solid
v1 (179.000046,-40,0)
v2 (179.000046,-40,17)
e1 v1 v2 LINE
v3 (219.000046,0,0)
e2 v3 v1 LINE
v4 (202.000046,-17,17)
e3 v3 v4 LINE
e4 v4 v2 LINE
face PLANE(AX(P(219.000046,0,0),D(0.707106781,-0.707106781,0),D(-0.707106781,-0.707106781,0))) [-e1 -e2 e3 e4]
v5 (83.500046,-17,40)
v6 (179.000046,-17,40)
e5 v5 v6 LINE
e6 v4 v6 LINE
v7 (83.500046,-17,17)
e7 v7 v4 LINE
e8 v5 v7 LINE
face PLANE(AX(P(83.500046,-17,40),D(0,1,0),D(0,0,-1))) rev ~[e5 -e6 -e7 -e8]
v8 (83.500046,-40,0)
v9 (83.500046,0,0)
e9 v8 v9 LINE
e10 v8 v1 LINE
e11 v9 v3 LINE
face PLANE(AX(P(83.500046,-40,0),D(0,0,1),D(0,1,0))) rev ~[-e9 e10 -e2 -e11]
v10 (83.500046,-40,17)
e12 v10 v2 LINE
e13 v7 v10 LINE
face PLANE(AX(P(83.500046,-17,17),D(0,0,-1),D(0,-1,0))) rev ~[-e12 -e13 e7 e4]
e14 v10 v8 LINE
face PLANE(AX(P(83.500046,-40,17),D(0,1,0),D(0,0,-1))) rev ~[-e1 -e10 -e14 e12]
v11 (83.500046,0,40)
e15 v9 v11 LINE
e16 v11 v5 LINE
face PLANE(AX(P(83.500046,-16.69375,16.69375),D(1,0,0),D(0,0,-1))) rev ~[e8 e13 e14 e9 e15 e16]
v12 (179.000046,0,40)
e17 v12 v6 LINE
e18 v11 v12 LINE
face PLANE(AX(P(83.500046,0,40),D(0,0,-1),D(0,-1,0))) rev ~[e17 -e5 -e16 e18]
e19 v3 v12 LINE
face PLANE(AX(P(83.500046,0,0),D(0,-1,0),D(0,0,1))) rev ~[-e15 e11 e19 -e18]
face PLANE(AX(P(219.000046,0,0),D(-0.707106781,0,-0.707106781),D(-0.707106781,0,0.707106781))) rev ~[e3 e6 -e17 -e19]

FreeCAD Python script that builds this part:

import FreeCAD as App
import Part
import Sketcher
from FreeCAD import Vector

doc = App.newDocument("Part")
params = doc.addObject("Spreadsheet::Sheet", "Params")
for row, (alias, value) in enumerate([
    ("sketch1_width", "17 mm"),
    ("sketch1_width2", "23 mm"),
    ("pad1_length", "135.5 mm"),
    ("sketch2_width", "40 mm"),
    ("sketch3_width", "40 mm"),
], start=1):
    params.set(f"A{row}", alias)
    params.set(f"B{row}", "=" + value)
    params.setAlias(f"B{row}", alias)

body = doc.addObject("PartDesign::Body", "Body")

# Sketch on YZ plane
sketch1 = body.newObject("Sketcher::SketchObject", "Sketch")
sketch1.AttachmentSupport = (doc.getObject("YZ_Plane"), [""])
sketch1.MapMode = "FlatFace"
sketch1.AttachmentOffset = App.Placement(Vector(0, 0, 83.500046), App.Rotation())
sketch1.addGeometry(Part.LineSegment(Vector(0, 0, 0), Vector(0, 40, 0)), False)
sketch1.addGeometry(Part.LineSegment(Vector(0, 40, 0), Vector(-17, 40, 0)), False)
sketch1.addGeometry(Part.LineSegment(Vector(-17, 40, 0), Vector(-17, 17, 0)), False)
sketch1.addGeometry(Part.LineSegment(Vector(-17, 17, 0), Vector(-40, 17, 0)), False)
sketch1.addGeometry(Part.LineSegment(Vector(-40, 17, 0), Vector(-40, 0, 0)), False)
sketch1.addGeometry(Part.LineSegment(Vector(-40, 0, 0), Vector(0, 0, 0)), False)
sketch1.addConstraint(Sketcher.Constraint("Coincident", 0, 2, 1, 1))
sketch1.addConstraint(Sketcher.Constraint("Coincident", 1, 2, 2, 1))
sketch1.addConstraint(Sketcher.Constraint("Coincident", 2, 2, 3, 1))
sketch1.addConstraint(Sketcher.Constraint("Coincident", 3, 2, 4, 1))
sketch1.addConstraint(Sketcher.Constraint("Coincident", 4, 2, 5, 1))
sketch1.addConstraint(Sketcher.Constraint("Coincident", 5, 2, 0, 1))
sketch1.addConstraint(Sketcher.Constraint("Vertical", 0))
sketch1.addConstraint(Sketcher.Constraint("Horizontal", 1))
sketch1.addConstraint(Sketcher.Constraint("Vertical", 2))
sketch1.addConstraint(Sketcher.Constraint("Horizontal", 3))
sketch1.addConstraint(Sketcher.Constraint("Vertical", 4))
sketch1.addConstraint(Sketcher.Constraint("Horizontal", 5))
sketch1.addConstraint(Sketcher.Constraint("Coincident", 5, 2, -1, 1))
sketch1.addConstraint(Sketcher.Constraint("Equal", 5, 0))
sketch1.addConstraint(Sketcher.Constraint("Equal", 3, 2))
sketch1.addConstraint(Sketcher.Constraint("DistanceX", 1, 2, 1, 1, 17.0))
sketch1.addConstraint(Sketcher.Constraint("DistanceX", 3, 2, 3, 1, 23.0))
sketch1.setExpression("Constraints[15]", "Params.sketch1_width")
sketch1.setExpression("Constraints[16]", "Params.sketch1_width2")
pad1 = body.newObject("PartDesign::Pad", "Pad")
pad1.Profile = sketch1
pad1.setExpression("Length", "Params.pad1_length")

# Sketch on XZ plane
sketch2 = body.newObject("Sketcher::SketchObject", "Sketch001")
sketch2.AttachmentSupport = (doc.getObject("XZ_Plane"), [""])
sketch2.MapMode = "FlatFace"
sketch2.addGeometry(Part.LineSegment(Vector(219.000046, 0, 0), Vector(179.000046, 40, 0)), False)
sketch2.addGeometry(Part.LineSegment(Vector(179.000046, 40, 0), Vector(219.000046, 40, 0)), False)
sketch2.addGeometry(Part.LineSegment(Vector(219.000046, 40, 0), Vector(219.000046, 0, 0)), False)
sketch2.addConstraint(Sketcher.Constraint("Coincident", 0, 2, 1, 1))
sketch2.addConstraint(Sketcher.Constraint("Coincident", 1, 2, 2, 1))
sketch2.addConstraint(Sketcher.Constraint("Coincident", 2, 2, 0, 1))
sketch2.addConstraint(Sketcher.Constraint("Horizontal", 1))
sketch2.addConstraint(Sketcher.Constraint("Vertical", 2))
sketch2.addConstraint(Sketcher.Constraint("PointOnObject", 2, 2, -1))
sketch2.addConstraint(Sketcher.Constraint("Equal", 1, 2))
sketch2.addConstraint(Sketcher.Constraint("DistanceX", 1, 1, 1, 2, 40.0))
sketch2.addConstraint(Sketcher.Constraint("DistanceX", -1, 1, 0, 2, 179.000046))
sketch2.setExpression("Constraints[7]", "Params.sketch2_width")
pocket1 = body.newObject("PartDesign::Pocket", "Pocket")
pocket1.Profile = sketch2
pocket1.Type = "ThroughAll"
pocket1.Reversed = True

# Sketch on XY plane
sketch3 = body.newObject("Sketcher::SketchObject", "Sketch002")
sketch3.AttachmentSupport = (doc.getObject("XY_Plane"), [""])
sketch3.MapMode = "FlatFace"
sketch3.addGeometry(Part.LineSegment(Vector(179.000046, -40, 0), Vector(219.000046, 0, 0)), False)
sketch3.addGeometry(Part.LineSegment(Vector(219.000046, 0, 0), Vector(219.000046, -40, 0)), False)
sketch3.addGeometry(Part.LineSegment(Vector(219.000046, -40, 0), Vector(179.000046, -40, 0)), False)
sketch3.addConstraint(Sketcher.Constraint("Coincident", 0, 2, 1, 1))
sketch3.addConstraint(Sketcher.Constraint("Coincident", 1, 2, 2, 1))
sketch3.addConstraint(Sketcher.Constraint("Coincident", 2, 2, 0, 1))
sketch3.addConstraint(Sketcher.Constraint("Vertical", 1))
sketch3.addConstraint(Sketcher.Constraint("Horizontal", 2))
sketch3.addConstraint(Sketcher.Constraint("PointOnObject", 0, 2, -1))
sketch3.addConstraint(Sketcher.Constraint("Equal", 2, 1))
sketch3.addConstraint(Sketcher.Constraint("DistanceX", 2, 2, 2, 1, 40.0))
sketch3.addConstraint(Sketcher.Constraint("DistanceX", -1, 1, 0, 2, 219.000046))
sketch3.setExpression("Constraints[7]", "Params.sketch3_width")
pocket2 = body.newObject("PartDesign::Pocket", "Pocket001")
pocket2.Profile = sketch3
pocket2.Type = "ThroughAll"
pocket2.Reversed = True

doc.recompute()
